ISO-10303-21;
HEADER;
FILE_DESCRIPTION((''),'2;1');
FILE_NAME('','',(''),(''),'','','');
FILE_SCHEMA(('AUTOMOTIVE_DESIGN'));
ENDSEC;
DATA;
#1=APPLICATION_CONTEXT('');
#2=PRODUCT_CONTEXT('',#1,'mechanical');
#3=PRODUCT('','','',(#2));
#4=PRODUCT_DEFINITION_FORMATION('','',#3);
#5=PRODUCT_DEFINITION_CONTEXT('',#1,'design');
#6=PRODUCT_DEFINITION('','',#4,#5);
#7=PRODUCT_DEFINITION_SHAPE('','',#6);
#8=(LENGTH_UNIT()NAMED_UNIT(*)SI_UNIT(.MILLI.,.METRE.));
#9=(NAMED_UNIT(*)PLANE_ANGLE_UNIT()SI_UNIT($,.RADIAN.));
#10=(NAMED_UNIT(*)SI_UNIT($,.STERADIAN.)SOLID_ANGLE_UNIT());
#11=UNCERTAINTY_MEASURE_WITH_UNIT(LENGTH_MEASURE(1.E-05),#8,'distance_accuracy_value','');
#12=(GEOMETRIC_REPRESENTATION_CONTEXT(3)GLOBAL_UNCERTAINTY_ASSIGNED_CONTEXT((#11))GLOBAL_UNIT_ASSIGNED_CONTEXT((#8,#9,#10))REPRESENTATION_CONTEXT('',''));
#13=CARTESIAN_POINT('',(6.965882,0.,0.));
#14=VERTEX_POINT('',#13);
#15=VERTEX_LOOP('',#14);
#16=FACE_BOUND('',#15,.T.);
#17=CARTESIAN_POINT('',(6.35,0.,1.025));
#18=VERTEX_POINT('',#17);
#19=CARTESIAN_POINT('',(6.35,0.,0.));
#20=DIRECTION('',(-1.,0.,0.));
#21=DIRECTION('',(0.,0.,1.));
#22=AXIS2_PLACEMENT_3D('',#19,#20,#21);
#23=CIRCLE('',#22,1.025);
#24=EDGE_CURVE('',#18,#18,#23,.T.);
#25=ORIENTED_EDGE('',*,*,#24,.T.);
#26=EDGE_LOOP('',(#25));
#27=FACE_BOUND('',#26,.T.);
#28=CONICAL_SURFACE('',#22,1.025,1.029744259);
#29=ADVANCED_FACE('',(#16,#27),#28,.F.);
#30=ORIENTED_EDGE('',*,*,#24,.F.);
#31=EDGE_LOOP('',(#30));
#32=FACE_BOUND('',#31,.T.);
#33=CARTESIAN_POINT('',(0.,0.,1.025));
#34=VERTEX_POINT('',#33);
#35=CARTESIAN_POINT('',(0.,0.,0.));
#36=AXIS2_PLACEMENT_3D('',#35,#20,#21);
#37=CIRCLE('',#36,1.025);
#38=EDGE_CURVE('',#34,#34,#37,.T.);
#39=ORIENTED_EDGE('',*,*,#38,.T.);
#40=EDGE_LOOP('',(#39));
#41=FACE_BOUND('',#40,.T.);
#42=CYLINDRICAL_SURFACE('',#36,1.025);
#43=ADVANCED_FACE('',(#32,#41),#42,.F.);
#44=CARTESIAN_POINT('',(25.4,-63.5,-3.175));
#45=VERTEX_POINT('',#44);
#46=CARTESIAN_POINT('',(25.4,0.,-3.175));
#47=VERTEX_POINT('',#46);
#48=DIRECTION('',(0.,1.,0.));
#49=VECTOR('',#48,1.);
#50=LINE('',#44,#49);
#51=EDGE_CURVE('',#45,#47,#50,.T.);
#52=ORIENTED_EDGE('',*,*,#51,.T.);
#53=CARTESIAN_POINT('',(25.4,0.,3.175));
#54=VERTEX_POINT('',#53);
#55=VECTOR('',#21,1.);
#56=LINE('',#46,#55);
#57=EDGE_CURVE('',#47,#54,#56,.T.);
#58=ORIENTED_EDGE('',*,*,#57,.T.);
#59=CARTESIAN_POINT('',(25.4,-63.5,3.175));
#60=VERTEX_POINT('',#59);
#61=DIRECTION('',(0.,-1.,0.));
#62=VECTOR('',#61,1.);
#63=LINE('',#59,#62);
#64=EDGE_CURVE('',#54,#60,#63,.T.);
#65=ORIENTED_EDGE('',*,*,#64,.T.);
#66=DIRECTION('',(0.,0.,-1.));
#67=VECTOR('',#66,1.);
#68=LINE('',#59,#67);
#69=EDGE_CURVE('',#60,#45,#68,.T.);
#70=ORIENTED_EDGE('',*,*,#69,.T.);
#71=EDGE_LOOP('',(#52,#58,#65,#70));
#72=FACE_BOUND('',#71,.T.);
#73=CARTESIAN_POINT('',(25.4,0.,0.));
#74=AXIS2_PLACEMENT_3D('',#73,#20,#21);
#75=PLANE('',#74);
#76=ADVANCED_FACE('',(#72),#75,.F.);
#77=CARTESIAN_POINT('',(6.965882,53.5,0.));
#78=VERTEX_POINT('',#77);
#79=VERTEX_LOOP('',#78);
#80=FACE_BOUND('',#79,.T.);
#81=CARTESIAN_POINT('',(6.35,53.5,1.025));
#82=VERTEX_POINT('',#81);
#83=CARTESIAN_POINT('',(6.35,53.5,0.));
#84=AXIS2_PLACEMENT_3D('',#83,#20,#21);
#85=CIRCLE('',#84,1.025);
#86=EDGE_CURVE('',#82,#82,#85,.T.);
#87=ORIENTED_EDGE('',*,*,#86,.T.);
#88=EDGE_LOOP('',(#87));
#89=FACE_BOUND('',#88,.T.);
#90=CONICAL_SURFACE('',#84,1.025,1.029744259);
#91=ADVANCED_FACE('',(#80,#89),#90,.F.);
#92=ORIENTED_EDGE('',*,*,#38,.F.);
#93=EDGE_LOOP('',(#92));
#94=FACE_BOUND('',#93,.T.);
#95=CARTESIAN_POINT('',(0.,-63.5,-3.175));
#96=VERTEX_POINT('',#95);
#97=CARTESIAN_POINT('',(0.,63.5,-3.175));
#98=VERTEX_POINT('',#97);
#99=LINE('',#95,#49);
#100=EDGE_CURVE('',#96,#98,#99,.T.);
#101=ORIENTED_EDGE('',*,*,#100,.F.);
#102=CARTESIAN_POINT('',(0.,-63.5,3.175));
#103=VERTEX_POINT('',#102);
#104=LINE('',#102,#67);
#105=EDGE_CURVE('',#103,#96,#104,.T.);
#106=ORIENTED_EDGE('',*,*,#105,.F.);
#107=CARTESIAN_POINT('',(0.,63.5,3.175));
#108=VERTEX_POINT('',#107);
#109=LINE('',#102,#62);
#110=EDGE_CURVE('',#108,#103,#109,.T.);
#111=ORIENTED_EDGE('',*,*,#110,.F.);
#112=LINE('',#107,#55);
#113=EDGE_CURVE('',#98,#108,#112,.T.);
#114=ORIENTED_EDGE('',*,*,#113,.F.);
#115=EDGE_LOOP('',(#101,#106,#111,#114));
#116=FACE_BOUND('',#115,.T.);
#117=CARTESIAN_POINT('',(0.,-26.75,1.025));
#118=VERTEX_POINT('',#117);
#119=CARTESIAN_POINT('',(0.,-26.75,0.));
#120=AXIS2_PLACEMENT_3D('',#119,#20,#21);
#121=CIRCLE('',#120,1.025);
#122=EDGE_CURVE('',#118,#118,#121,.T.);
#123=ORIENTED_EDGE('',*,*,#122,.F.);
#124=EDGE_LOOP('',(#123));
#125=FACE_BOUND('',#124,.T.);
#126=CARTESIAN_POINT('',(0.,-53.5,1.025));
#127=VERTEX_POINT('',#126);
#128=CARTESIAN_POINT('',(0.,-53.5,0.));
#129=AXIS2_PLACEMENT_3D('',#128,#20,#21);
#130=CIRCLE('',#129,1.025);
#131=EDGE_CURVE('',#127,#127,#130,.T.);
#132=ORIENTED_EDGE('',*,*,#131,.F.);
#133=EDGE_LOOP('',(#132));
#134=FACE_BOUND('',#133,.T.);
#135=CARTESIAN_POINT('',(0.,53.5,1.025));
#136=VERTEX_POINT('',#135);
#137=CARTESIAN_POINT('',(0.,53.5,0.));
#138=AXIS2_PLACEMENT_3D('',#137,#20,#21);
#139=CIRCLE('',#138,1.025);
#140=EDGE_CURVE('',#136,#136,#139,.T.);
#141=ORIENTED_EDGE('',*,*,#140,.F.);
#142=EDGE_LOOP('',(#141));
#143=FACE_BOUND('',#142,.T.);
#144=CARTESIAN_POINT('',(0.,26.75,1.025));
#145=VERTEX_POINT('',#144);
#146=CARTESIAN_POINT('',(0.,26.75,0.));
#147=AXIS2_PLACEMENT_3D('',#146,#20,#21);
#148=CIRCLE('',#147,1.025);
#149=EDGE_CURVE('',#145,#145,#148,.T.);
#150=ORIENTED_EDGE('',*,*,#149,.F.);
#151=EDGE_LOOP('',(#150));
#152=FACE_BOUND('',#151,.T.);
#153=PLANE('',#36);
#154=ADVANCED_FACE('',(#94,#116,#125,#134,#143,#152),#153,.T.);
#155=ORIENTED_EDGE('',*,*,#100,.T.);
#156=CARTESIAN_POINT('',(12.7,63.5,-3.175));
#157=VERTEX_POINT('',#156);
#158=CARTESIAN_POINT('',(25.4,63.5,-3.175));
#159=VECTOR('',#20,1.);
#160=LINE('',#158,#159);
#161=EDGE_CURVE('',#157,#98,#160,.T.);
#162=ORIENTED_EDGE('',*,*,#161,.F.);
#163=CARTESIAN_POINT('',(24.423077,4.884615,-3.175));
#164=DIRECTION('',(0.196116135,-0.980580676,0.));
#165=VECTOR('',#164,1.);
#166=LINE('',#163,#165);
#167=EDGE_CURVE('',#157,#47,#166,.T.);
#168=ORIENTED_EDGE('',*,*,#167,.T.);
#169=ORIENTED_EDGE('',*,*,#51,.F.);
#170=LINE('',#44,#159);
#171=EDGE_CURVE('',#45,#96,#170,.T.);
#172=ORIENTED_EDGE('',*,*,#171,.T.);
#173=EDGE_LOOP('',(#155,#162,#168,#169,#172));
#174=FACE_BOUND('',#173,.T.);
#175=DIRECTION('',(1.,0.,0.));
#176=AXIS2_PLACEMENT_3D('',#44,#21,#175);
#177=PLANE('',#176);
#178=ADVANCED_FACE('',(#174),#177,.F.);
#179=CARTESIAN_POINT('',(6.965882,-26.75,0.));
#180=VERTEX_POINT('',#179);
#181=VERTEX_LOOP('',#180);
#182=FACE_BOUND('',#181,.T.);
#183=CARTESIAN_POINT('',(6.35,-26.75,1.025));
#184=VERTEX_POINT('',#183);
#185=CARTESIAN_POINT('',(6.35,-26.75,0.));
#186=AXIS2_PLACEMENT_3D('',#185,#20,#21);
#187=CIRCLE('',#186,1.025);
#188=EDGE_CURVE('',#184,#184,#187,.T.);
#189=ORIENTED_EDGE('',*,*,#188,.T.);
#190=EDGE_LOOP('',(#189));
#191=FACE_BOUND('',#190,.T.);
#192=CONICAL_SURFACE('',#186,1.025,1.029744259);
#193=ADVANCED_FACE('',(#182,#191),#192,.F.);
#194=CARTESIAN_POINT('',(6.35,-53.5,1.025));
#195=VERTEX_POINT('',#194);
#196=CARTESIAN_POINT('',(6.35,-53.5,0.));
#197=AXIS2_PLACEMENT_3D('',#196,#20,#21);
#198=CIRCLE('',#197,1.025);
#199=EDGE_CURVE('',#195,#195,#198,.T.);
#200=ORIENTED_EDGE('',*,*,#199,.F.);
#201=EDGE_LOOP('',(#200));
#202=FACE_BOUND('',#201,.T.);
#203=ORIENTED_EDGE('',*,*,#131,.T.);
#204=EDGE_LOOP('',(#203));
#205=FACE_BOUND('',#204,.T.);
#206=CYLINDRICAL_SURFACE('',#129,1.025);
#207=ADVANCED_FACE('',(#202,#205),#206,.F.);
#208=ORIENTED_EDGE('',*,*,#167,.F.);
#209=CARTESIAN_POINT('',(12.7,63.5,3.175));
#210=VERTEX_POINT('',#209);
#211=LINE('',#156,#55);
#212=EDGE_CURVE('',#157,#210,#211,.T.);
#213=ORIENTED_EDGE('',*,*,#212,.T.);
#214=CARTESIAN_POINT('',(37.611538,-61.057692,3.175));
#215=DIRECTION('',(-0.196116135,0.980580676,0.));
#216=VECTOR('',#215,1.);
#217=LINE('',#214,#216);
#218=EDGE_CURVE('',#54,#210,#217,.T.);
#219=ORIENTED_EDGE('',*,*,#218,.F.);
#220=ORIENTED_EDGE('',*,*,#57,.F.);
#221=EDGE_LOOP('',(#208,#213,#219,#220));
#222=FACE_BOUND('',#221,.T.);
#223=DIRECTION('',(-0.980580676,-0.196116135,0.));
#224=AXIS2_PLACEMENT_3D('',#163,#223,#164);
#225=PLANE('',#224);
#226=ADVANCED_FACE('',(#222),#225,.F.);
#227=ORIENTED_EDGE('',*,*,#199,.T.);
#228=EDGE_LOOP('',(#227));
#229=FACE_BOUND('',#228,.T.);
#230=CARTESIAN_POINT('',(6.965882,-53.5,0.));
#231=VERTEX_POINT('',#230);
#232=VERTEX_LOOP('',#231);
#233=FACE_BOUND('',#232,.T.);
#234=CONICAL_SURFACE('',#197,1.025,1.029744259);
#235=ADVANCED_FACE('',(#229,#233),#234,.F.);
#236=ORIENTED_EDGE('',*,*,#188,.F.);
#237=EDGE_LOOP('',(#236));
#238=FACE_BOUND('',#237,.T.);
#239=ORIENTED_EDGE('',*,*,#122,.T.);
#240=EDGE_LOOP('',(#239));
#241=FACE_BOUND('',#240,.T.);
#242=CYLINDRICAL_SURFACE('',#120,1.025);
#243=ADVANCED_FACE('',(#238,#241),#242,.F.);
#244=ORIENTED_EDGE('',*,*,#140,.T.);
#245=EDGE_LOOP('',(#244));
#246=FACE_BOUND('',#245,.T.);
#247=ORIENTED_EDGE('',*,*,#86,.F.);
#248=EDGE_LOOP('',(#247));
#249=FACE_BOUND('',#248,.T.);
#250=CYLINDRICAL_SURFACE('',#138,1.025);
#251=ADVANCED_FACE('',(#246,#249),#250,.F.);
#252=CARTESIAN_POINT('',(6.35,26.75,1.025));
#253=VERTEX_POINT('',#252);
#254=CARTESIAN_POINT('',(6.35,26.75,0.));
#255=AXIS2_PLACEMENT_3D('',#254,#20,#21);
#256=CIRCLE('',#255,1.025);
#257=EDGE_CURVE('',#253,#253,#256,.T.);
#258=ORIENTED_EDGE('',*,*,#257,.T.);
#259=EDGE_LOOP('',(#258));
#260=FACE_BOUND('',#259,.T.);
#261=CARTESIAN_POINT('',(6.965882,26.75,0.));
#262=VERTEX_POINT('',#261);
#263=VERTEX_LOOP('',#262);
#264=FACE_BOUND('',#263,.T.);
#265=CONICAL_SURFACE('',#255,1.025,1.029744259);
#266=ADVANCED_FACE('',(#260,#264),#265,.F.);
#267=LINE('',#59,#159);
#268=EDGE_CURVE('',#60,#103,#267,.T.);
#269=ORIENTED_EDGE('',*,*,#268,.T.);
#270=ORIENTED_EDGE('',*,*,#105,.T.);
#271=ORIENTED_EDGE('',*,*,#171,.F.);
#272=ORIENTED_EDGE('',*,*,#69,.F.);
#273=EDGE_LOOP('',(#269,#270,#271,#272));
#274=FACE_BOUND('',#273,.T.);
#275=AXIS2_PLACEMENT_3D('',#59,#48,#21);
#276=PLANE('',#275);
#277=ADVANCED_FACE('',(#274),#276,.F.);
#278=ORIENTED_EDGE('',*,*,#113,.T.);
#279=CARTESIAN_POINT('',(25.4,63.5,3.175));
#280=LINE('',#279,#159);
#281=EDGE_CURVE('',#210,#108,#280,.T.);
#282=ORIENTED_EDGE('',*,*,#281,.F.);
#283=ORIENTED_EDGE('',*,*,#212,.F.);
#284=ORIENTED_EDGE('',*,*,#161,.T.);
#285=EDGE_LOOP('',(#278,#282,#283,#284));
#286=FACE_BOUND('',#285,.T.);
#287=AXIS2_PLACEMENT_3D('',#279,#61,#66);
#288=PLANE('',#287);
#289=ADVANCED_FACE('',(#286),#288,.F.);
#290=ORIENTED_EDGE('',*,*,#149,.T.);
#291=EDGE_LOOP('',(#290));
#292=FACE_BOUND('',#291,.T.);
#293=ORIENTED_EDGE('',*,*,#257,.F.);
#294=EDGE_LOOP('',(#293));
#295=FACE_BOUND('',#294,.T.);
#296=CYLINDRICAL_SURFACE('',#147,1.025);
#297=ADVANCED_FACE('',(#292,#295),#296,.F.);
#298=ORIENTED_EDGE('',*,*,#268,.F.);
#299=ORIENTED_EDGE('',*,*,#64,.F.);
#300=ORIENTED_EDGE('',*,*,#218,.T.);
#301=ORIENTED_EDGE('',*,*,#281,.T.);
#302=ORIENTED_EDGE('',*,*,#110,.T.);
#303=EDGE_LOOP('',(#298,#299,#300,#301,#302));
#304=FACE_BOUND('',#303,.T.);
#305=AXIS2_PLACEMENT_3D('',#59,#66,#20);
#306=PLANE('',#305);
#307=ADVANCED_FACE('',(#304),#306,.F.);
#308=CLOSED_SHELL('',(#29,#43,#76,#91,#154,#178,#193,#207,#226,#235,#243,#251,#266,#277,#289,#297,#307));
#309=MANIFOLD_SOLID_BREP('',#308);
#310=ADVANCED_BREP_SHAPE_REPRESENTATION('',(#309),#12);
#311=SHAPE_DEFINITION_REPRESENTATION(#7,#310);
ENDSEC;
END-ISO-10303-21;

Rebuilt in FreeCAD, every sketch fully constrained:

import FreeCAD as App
import Part
import Sketcher
from FreeCAD import Vector
Q = App.Units.Quantity


def add_polygon(sketch, points):
    """Adds a closed chain of lines whose ends are joined by coincident constraints."""
    first, n = sketch.GeometryCount, len(points)
    for a, b in zip(points, points[1:] + points[:1]):
        sketch.addGeometry(Part.LineSegment(App.Vector(*a, 0), App.Vector(*b, 0)), False)
    for i in range(n):
        sketch.addConstraint(Sketcher.Constraint("Coincident", first + i, 2, first + (i + 1) % n, 1))

doc = App.newDocument("Part")
body = doc.addObject("PartDesign::Body", "Body")

# Sketch on YZ plane
sketch1 = body.newObject("Sketcher::SketchObject", "Sketch")
sketch1.AttachmentSupport = (doc.getObject("YZ_Plane"), [""])
sketch1.MapMode = "FlatFace"
add_polygon(sketch1, [(63.5, 3.175), (-63.5, 3.175), (-63.5, -3.175), (63.5, -3.175)])  # lines 0-3
sketch1.addConstraint([
    Sketcher.Constraint("Horizontal", 0),
    Sketcher.Constraint("Vertical", 1),
    Sketcher.Constraint("Horizontal", 2),
    Sketcher.Constraint("Vertical", 3),
    Sketcher.Constraint("Symmetric", 0, 2, 2, 2, -1, 1),
    Sketcher.Constraint("DistanceX", 0, 2, 0, 1, Q("5 in")),
    Sketcher.Constraint("DistanceY", 1, 2, 1, 1, Q("0.25 in")),
])
pad1 = body.newObject("PartDesign::Pad", "Pad")
pad1.Profile = sketch1
pad1.Length = Q("1 in")

# Sketch on YZ plane
sketch2 = body.newObject("Sketcher::SketchObject", "Sketch001")
sketch2.AttachmentSupport = (doc.getObject("YZ_Plane"), [""])
sketch2.MapMode = "FlatFace"
sketch2.addGeometry([
    Part.Circle(Vector(53.5, 0, 0), Vector(0, 0, 1), 1.025),  # 0
    Part.Circle(Vector(26.75, 0, 0), Vector(0, 0, 1), 1.025),  # 1
    Part.Circle(Vector(0, 0, 0), Vector(0, 0, 1), 1.025),  # 2
    Part.Circle(Vector(-26.75, 0, 0), Vector(0, 0, 1), 1.025),  # 3
    Part.Circle(Vector(-53.5, 0, 0), Vector(0, 0, 1), 1.025),  # 4
], False)
sketch2.addConstraint([
    Sketcher.Constraint("Coincident", 2, 3, -1, 1),
    Sketcher.Constraint("Equal", 0, 1),
    Sketcher.Constraint("Equal", 1, 2),
    Sketcher.Constraint("Equal", 2, 3),
    Sketcher.Constraint("Equal", 3, 4),
    Sketcher.Constraint("Symmetric", 1, 3, 3, 3, -1, 1),
    Sketcher.Constraint("Symmetric", 0, 3, 4, 3, -1, 1),
    Sketcher.Constraint("PointOnObject", 0, 3, -1),
    Sketcher.Constraint("PointOnObject", 1, 3, -1),
    Sketcher.Constraint("Diameter", 0, Q("2.05 mm")),
    Sketcher.Constraint("DistanceX", -1, 1, 0, 3, Q("53.5 mm")),
    Sketcher.Constraint("DistanceX", -1, 1, 1, 3, Q("26.75 mm")),
])
doc.recompute()
hole = body.newObject("PartDesign::Hole", "Hole")
hole.Profile = sketch2
hole.ThreadType = "None"
hole.Diameter = 2.05
hole.DepthType = "Dimension"
hole.Depth = Q("0.25 in")
hole.DrillPoint = "Angled"
hole.DrillPointAngle = 118
hole.Reversed = True

# Sketch on XY plane
sketch3 = body.newObject("Sketcher::SketchObject", "Sketch002")
sketch3.AttachmentSupport = (doc.getObject("XY_Plane"), [""])
sketch3.MapMode = "FlatFace"
sketch3.AttachmentOffset = App.Placement(Vector(0, 0, 0.125 * 25.4), App.Rotation())
add_polygon(sketch3, [(25.4, 63.5), (12.7, 63.5), (25.4, 0)])  # lines 0-2
sketch3.addConstraint([
    Sketcher.Constraint("Horizontal", 0),
    Sketcher.Constraint("Vertical", 2),
    Sketcher.Constraint("PointOnObject", 1, 2, -1),
    Sketcher.Constraint("DistanceX", 0, 2, 0, 1, Q("0.5 in")),
    Sketcher.Constraint("DistanceY", 2, 1, 2, 2, Q("2.5 in")),
    Sketcher.Constraint("DistanceX", -1, 1, 1, 2, Q("1 in")),
])
pocket1 = body.newObject("PartDesign::Pocket", "Pocket")
pocket1.Profile = sketch3
pocket1.Type = "ThroughAll"
pocket1.Midplane = True

doc.recompute()
